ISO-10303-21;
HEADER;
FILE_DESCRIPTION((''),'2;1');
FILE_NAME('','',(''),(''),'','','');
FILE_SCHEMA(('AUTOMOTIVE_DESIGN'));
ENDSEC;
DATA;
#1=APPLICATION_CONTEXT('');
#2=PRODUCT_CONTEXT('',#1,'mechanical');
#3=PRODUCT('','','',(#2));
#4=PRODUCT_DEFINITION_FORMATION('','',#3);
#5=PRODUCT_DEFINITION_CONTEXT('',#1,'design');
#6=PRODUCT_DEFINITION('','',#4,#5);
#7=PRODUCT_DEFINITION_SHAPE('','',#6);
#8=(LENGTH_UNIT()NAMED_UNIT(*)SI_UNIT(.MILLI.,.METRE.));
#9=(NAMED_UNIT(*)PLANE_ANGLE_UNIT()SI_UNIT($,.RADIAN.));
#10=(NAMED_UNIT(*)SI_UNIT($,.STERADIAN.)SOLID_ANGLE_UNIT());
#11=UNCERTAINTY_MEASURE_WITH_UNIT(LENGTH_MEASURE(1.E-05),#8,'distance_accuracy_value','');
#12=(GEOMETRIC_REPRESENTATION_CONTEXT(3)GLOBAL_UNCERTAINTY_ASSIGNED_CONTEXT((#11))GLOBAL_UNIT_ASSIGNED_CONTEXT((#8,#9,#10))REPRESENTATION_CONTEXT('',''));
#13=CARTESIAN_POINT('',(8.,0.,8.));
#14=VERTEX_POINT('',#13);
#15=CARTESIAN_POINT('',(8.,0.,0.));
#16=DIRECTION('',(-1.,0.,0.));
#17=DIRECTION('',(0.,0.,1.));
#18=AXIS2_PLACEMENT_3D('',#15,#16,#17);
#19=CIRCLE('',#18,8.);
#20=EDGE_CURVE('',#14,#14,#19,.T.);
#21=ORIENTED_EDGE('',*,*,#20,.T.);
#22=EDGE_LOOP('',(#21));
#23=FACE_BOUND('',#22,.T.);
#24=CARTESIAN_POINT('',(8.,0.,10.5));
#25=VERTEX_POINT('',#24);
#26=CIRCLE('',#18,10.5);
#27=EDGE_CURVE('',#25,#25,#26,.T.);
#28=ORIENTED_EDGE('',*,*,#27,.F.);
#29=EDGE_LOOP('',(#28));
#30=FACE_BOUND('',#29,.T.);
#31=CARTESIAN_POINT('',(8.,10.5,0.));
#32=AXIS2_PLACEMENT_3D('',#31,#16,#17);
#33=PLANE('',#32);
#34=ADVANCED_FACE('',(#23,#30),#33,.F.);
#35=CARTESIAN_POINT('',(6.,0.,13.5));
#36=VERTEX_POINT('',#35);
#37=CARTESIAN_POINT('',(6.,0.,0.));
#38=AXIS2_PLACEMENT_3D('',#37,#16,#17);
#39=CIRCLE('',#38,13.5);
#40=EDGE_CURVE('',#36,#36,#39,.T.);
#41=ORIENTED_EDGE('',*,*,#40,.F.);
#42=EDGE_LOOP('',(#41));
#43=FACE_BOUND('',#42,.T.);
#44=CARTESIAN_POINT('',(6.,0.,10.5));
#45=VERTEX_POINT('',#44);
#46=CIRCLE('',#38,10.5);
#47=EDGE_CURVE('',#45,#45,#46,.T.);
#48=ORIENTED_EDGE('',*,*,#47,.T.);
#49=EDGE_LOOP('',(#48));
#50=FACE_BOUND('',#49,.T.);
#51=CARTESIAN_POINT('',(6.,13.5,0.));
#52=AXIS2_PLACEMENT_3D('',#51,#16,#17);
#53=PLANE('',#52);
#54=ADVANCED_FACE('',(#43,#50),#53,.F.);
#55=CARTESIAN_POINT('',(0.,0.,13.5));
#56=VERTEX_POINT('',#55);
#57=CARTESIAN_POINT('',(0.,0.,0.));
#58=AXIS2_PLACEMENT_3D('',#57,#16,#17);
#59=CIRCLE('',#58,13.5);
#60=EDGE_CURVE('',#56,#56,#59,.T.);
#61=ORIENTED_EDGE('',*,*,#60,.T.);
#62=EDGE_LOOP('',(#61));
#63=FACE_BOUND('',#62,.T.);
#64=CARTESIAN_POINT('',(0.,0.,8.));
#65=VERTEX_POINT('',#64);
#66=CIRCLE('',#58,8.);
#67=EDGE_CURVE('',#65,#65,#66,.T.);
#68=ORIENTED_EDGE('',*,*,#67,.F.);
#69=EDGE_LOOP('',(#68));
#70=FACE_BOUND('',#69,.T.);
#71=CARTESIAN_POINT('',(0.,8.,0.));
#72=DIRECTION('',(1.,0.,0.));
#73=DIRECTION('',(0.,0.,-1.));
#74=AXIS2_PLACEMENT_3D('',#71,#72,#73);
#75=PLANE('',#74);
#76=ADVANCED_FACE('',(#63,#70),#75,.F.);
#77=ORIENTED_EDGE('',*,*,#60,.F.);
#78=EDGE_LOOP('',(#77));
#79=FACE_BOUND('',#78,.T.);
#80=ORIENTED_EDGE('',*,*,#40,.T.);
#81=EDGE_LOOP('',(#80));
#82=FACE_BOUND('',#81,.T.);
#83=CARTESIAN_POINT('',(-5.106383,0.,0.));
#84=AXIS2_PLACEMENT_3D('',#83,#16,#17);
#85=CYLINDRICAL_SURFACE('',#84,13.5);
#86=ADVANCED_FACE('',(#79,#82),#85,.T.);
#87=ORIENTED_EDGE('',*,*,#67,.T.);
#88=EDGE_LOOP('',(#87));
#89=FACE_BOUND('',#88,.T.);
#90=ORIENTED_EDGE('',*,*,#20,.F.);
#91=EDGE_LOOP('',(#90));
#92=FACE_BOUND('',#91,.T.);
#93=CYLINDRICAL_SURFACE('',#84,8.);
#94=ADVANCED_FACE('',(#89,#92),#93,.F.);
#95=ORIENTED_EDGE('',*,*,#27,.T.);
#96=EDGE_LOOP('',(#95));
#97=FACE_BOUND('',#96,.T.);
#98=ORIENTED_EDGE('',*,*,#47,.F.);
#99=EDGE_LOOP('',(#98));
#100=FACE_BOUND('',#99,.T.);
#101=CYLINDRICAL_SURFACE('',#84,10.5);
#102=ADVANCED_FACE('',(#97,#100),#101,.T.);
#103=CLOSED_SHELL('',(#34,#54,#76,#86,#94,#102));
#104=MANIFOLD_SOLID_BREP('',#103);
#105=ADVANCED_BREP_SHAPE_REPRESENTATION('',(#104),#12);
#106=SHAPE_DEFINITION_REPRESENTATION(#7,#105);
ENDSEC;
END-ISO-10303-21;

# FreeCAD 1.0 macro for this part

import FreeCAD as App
import Part
import Sketcher
from FreeCAD import Vector
Q = App.Units.Quantity


def add_polygon(sketch, points):
    """Adds a closed chain of lines whose ends are joined by coincident constraints."""
    first, n = sketch.GeometryCount, len(points)
    for a, b in zip(points, points[1:] + points[:1]):
        sketch.addGeometry(Part.LineSegment(App.Vector(*a, 0), App.Vector(*b, 0)), False)
    for i in range(n):
        sketch.addConstraint(Sketcher.Constraint("Coincident", first + i, 2, first + (i + 1) % n, 1))

doc = App.newDocument("Part")
body = doc.addObject("PartDesign::Body", "Body")

sketch1 = body.newObject("Sketcher::SketchObject", "Sketch")
sketch1.AttachmentSupport = (doc.getObject("XY_Plane"), [""])
sketch1.MapMode = "FlatFace"
add_polygon(sketch1, [(0, 13.5), (0, 8), (8, 8), (8, 10.5), (6, 10.5), (6, 13.5)])
sketch1.addConstraint([
    Sketcher.Constraint("Vertical", 0),
    Sketcher.Constraint("Horizontal", 1),
    Sketcher.Constraint("Vertical", 2),
    Sketcher.Constraint("Horizontal", 3),
    Sketcher.Constraint("Vertical", 4),
    Sketcher.Constraint("Horizontal", 5),
    Sketcher.Constraint("PointOnObject", 0, 2, -2),
    Sketcher.Constraint("DistanceX", 1, 1, 1, 2, Q("8 mm")),
    Sketcher.Constraint("DistanceX", 3, 2, 3, 1, Q("2 mm")),
    Sketcher.Constraint("DistanceY", 4, 1, 4, 2, Q("3 mm")),
    Sketcher.Constraint("DistanceY", 0, 2, 0, 1, Q("5.5 mm")),
    Sketcher.Constraint("DistanceY", -1, 1, 0, 2, Q("8 mm")),
])
revolution = body.newObject("PartDesign::Revolution", "Revolution")
revolution.Profile = sketch1
revolution.ReferenceAxis = (sketch1, ["H_Axis"])
revolution.Angle = 360

doc.recompute()
